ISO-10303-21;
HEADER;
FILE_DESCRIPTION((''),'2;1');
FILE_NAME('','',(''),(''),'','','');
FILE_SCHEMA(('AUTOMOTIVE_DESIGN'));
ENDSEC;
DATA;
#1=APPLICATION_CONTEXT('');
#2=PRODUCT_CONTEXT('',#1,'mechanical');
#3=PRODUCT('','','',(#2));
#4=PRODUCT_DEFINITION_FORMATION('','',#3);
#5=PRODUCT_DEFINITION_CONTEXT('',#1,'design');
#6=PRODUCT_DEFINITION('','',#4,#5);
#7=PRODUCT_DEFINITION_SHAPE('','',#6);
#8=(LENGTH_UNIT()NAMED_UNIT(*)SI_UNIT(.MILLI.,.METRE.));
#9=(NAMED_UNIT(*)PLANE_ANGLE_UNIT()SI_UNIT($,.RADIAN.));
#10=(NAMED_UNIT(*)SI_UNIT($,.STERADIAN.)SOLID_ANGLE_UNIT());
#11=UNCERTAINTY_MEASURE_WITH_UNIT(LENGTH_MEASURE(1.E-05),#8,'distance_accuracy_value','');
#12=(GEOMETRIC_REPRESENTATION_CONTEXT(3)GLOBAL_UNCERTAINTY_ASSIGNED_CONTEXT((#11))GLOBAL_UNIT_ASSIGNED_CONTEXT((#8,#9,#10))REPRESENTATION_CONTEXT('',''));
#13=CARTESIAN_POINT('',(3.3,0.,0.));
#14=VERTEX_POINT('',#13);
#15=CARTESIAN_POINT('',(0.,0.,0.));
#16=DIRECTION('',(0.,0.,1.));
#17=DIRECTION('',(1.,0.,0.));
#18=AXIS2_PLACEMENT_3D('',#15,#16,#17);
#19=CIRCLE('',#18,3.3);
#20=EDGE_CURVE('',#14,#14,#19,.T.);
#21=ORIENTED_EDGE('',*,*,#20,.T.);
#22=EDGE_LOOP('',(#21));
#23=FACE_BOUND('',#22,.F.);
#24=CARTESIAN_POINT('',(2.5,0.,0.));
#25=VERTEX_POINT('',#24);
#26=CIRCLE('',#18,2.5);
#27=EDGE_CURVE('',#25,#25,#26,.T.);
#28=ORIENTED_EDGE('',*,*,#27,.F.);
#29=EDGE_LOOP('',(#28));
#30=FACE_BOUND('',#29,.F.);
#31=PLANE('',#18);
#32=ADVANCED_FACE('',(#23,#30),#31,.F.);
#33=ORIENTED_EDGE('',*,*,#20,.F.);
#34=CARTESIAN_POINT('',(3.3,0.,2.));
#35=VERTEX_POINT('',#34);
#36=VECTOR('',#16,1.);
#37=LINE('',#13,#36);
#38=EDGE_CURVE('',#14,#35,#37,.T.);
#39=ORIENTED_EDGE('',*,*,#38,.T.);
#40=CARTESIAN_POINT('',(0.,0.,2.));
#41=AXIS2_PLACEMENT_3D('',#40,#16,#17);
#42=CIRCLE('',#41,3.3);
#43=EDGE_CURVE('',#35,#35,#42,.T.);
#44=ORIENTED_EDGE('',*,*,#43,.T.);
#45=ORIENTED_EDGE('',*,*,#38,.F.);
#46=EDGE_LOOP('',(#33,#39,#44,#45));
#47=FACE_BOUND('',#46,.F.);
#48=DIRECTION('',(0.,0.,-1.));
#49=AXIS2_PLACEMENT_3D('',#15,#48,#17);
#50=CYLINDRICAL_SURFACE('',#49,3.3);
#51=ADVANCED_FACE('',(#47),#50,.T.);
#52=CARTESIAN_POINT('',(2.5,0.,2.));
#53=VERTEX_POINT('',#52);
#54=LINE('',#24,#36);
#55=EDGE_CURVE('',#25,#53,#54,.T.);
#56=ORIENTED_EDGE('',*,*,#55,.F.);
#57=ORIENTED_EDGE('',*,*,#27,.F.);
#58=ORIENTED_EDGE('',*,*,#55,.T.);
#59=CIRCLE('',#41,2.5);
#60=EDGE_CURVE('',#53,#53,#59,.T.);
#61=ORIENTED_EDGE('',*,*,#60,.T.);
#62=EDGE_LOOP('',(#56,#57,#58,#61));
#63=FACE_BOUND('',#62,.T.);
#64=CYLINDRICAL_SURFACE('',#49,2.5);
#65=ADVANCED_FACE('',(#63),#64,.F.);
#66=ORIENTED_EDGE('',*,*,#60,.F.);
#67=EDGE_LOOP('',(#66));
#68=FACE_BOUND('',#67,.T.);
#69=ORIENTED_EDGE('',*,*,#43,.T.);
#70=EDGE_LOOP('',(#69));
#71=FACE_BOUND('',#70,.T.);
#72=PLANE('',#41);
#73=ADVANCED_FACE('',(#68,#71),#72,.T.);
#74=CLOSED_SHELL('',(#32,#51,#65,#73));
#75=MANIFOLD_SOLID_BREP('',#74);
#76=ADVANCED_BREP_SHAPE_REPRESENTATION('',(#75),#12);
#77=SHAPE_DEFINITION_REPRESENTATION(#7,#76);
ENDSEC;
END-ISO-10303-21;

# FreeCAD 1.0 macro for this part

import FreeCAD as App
import Part
import Sketcher

V = App.Vector

doc = App.newDocument("Part")
body = doc.addObject("PartDesign::Body", "Body")

# Sketch on XY plane
sketch1 = body.newObject("Sketcher::SketchObject", "Sketch")
sketch1.AttachmentSupport = (doc.getObject("XY_Plane"), [""])
sketch1.MapMode = "FlatFace"
sketch1.addGeometry([
    Part.Circle(V(0, 0, 0), V(0, 0, 1), 3.3),
    Part.Circle(V(0, 0, 0), V(0, 0, 1), 2.5),
], False)
sketch1.addConstraint([
    Sketcher.Constraint("Coincident", 0, 3, -1, 1),
    Sketcher.Constraint("Coincident", 1, 3, -1, 1),
    Sketcher.Constraint("Diameter", 1, 5.0),
    Sketcher.Constraint("Diameter", 0, 6.6),
])
pad1 = body.newObject("PartDesign::Pad", "Pad")
pad1.Profile = sketch1
pad1.Length = 2

doc.recompute()
